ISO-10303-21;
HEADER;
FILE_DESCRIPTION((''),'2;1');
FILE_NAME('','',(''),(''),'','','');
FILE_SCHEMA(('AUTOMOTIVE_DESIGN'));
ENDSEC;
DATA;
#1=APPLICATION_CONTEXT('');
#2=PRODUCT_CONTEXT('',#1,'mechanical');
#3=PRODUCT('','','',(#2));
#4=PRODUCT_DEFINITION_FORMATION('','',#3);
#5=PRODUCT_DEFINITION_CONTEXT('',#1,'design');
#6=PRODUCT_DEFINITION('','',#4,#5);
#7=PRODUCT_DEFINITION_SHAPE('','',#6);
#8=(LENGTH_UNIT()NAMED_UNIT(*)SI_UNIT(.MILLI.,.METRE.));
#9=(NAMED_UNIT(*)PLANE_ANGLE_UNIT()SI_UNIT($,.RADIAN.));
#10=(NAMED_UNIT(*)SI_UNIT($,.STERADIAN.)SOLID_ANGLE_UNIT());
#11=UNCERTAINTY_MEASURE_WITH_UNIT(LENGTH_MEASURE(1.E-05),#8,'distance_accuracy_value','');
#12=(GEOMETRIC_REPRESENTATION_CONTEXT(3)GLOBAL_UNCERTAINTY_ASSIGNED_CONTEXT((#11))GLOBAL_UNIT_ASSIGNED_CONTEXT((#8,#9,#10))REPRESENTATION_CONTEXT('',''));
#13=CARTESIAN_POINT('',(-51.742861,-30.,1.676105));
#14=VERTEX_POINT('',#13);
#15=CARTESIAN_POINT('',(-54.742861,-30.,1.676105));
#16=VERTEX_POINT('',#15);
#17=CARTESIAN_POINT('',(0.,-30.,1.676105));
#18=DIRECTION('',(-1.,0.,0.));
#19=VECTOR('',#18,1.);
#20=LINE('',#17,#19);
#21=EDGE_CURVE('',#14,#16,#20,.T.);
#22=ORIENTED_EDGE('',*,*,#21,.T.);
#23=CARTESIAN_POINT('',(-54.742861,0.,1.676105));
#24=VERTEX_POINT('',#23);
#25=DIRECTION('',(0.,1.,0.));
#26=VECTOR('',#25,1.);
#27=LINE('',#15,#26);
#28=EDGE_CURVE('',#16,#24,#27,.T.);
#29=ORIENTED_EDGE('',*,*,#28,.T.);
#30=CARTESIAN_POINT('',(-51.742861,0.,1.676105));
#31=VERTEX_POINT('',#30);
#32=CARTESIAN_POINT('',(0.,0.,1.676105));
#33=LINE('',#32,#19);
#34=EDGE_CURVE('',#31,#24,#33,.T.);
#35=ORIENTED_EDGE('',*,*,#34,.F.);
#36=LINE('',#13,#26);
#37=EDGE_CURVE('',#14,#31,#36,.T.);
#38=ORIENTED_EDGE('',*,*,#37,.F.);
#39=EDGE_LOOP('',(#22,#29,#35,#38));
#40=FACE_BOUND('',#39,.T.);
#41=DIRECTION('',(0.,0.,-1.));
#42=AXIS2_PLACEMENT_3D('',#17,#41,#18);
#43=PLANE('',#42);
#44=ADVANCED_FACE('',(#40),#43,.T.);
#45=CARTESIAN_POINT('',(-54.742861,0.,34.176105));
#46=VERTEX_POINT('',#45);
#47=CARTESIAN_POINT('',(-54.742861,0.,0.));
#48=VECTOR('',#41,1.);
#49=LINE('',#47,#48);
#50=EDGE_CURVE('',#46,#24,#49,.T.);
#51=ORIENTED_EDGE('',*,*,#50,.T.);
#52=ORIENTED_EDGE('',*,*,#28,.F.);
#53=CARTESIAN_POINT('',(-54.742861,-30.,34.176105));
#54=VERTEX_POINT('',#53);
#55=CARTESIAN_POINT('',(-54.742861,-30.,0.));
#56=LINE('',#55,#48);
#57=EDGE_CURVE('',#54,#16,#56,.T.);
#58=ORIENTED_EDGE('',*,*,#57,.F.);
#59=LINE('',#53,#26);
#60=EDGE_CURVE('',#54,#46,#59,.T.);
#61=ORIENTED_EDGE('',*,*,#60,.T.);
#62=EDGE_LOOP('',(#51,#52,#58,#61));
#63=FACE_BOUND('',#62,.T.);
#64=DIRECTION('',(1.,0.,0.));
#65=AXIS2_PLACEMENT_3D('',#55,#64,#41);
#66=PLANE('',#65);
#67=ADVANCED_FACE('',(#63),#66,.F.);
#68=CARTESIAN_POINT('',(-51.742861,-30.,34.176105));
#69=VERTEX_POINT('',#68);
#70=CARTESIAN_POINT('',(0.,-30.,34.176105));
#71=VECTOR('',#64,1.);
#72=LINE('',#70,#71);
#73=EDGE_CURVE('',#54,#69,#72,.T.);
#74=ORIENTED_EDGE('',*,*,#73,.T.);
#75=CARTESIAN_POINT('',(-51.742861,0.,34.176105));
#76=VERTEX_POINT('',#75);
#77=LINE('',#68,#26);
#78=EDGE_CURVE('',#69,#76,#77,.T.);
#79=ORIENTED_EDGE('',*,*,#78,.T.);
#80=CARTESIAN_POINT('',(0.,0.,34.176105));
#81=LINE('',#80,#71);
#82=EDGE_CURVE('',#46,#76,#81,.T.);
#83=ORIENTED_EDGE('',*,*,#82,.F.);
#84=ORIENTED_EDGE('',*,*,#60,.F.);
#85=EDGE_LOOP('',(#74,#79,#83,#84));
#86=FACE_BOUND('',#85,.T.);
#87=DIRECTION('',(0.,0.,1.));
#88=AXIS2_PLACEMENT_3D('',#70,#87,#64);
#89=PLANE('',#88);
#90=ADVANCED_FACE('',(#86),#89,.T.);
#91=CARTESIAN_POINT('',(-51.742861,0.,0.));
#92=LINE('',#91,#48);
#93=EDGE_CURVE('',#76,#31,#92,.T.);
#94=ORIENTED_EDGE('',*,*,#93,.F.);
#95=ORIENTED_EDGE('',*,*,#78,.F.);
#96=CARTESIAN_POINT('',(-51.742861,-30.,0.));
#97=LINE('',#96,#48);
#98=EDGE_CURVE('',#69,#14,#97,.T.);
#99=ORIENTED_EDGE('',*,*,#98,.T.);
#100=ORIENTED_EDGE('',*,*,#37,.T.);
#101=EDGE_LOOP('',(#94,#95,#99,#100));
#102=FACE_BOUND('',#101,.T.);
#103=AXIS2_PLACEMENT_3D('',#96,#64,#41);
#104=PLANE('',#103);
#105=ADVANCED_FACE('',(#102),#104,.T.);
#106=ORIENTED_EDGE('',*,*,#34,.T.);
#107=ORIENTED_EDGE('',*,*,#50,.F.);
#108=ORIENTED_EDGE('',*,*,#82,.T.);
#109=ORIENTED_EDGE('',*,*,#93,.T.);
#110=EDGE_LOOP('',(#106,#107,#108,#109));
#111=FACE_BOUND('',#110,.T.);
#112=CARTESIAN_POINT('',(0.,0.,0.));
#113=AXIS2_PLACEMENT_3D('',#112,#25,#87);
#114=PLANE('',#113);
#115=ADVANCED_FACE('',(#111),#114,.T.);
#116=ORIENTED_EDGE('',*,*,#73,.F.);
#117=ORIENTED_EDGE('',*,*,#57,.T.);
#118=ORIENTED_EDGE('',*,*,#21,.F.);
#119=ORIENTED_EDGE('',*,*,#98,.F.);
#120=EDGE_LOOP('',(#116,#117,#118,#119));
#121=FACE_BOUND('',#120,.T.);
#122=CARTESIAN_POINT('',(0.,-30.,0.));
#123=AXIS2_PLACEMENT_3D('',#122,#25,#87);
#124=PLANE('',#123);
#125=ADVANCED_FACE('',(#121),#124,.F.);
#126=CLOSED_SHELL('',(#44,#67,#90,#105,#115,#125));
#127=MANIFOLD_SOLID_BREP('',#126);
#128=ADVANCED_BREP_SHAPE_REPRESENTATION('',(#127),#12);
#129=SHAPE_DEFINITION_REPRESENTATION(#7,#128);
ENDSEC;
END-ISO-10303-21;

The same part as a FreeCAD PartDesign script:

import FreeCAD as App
import Part
import Sketcher
from FreeCAD import Vector

doc = App.newDocument("Part")
body = doc.addObject("PartDesign::Body", "Body")

# Sketch on XZ plane
sketch1 = body.newObject("Sketcher::SketchObject", "Sketch")
sketch1.AttachmentSupport = (doc.getObject("XZ_Plane"), [""])
sketch1.MapMode = "FlatFace"
sketch1.addGeometry([
    Part.LineSegment(Vector(-54.7, 1.7, 0), Vector(-54.7, 34.2, 0)),
    Part.LineSegment(Vector(-54.7, 34.2, 0), Vector(-51.7, 34.2, 0)),
    Part.LineSegment(Vector(-51.7, 34.2, 0), Vector(-51.7, 1.7, 0)),
    Part.LineSegment(Vector(-51.7, 1.7, 0), Vector(-54.7, 1.7, 0)),
], False)
sketch1.addConstraint([
    Sketcher.Constraint("Coincident", 0, 2, 1, 1),
    Sketcher.Constraint("Coincident", 1, 2, 2, 1),
    Sketcher.Constraint("Coincident", 2, 2, 3, 1),
    Sketcher.Constraint("Coincident", 3, 2, 0, 1),
    Sketcher.Constraint("Vertical", 0),
    Sketcher.Constraint("Horizontal", 1),
    Sketcher.Constraint("Vertical", 2),
    Sketcher.Constraint("Horizontal", 3),
    Sketcher.Constraint("DistanceX", 1, 1, 1, 2, 3.0),
    Sketcher.Constraint("DistanceY", 0, 1, 0, 2, 32.5),
    Sketcher.Constraint("DistanceX", 0, 2, -1, 1, 54.742861),
    Sketcher.Constraint("DistanceY", -1, 1, 0, 2, 34.176105),
])
pad1 = body.newObject("PartDesign::Pad", "Pad")
pad1.Profile = sketch1
pad1.Length = 30

doc.recompute()
